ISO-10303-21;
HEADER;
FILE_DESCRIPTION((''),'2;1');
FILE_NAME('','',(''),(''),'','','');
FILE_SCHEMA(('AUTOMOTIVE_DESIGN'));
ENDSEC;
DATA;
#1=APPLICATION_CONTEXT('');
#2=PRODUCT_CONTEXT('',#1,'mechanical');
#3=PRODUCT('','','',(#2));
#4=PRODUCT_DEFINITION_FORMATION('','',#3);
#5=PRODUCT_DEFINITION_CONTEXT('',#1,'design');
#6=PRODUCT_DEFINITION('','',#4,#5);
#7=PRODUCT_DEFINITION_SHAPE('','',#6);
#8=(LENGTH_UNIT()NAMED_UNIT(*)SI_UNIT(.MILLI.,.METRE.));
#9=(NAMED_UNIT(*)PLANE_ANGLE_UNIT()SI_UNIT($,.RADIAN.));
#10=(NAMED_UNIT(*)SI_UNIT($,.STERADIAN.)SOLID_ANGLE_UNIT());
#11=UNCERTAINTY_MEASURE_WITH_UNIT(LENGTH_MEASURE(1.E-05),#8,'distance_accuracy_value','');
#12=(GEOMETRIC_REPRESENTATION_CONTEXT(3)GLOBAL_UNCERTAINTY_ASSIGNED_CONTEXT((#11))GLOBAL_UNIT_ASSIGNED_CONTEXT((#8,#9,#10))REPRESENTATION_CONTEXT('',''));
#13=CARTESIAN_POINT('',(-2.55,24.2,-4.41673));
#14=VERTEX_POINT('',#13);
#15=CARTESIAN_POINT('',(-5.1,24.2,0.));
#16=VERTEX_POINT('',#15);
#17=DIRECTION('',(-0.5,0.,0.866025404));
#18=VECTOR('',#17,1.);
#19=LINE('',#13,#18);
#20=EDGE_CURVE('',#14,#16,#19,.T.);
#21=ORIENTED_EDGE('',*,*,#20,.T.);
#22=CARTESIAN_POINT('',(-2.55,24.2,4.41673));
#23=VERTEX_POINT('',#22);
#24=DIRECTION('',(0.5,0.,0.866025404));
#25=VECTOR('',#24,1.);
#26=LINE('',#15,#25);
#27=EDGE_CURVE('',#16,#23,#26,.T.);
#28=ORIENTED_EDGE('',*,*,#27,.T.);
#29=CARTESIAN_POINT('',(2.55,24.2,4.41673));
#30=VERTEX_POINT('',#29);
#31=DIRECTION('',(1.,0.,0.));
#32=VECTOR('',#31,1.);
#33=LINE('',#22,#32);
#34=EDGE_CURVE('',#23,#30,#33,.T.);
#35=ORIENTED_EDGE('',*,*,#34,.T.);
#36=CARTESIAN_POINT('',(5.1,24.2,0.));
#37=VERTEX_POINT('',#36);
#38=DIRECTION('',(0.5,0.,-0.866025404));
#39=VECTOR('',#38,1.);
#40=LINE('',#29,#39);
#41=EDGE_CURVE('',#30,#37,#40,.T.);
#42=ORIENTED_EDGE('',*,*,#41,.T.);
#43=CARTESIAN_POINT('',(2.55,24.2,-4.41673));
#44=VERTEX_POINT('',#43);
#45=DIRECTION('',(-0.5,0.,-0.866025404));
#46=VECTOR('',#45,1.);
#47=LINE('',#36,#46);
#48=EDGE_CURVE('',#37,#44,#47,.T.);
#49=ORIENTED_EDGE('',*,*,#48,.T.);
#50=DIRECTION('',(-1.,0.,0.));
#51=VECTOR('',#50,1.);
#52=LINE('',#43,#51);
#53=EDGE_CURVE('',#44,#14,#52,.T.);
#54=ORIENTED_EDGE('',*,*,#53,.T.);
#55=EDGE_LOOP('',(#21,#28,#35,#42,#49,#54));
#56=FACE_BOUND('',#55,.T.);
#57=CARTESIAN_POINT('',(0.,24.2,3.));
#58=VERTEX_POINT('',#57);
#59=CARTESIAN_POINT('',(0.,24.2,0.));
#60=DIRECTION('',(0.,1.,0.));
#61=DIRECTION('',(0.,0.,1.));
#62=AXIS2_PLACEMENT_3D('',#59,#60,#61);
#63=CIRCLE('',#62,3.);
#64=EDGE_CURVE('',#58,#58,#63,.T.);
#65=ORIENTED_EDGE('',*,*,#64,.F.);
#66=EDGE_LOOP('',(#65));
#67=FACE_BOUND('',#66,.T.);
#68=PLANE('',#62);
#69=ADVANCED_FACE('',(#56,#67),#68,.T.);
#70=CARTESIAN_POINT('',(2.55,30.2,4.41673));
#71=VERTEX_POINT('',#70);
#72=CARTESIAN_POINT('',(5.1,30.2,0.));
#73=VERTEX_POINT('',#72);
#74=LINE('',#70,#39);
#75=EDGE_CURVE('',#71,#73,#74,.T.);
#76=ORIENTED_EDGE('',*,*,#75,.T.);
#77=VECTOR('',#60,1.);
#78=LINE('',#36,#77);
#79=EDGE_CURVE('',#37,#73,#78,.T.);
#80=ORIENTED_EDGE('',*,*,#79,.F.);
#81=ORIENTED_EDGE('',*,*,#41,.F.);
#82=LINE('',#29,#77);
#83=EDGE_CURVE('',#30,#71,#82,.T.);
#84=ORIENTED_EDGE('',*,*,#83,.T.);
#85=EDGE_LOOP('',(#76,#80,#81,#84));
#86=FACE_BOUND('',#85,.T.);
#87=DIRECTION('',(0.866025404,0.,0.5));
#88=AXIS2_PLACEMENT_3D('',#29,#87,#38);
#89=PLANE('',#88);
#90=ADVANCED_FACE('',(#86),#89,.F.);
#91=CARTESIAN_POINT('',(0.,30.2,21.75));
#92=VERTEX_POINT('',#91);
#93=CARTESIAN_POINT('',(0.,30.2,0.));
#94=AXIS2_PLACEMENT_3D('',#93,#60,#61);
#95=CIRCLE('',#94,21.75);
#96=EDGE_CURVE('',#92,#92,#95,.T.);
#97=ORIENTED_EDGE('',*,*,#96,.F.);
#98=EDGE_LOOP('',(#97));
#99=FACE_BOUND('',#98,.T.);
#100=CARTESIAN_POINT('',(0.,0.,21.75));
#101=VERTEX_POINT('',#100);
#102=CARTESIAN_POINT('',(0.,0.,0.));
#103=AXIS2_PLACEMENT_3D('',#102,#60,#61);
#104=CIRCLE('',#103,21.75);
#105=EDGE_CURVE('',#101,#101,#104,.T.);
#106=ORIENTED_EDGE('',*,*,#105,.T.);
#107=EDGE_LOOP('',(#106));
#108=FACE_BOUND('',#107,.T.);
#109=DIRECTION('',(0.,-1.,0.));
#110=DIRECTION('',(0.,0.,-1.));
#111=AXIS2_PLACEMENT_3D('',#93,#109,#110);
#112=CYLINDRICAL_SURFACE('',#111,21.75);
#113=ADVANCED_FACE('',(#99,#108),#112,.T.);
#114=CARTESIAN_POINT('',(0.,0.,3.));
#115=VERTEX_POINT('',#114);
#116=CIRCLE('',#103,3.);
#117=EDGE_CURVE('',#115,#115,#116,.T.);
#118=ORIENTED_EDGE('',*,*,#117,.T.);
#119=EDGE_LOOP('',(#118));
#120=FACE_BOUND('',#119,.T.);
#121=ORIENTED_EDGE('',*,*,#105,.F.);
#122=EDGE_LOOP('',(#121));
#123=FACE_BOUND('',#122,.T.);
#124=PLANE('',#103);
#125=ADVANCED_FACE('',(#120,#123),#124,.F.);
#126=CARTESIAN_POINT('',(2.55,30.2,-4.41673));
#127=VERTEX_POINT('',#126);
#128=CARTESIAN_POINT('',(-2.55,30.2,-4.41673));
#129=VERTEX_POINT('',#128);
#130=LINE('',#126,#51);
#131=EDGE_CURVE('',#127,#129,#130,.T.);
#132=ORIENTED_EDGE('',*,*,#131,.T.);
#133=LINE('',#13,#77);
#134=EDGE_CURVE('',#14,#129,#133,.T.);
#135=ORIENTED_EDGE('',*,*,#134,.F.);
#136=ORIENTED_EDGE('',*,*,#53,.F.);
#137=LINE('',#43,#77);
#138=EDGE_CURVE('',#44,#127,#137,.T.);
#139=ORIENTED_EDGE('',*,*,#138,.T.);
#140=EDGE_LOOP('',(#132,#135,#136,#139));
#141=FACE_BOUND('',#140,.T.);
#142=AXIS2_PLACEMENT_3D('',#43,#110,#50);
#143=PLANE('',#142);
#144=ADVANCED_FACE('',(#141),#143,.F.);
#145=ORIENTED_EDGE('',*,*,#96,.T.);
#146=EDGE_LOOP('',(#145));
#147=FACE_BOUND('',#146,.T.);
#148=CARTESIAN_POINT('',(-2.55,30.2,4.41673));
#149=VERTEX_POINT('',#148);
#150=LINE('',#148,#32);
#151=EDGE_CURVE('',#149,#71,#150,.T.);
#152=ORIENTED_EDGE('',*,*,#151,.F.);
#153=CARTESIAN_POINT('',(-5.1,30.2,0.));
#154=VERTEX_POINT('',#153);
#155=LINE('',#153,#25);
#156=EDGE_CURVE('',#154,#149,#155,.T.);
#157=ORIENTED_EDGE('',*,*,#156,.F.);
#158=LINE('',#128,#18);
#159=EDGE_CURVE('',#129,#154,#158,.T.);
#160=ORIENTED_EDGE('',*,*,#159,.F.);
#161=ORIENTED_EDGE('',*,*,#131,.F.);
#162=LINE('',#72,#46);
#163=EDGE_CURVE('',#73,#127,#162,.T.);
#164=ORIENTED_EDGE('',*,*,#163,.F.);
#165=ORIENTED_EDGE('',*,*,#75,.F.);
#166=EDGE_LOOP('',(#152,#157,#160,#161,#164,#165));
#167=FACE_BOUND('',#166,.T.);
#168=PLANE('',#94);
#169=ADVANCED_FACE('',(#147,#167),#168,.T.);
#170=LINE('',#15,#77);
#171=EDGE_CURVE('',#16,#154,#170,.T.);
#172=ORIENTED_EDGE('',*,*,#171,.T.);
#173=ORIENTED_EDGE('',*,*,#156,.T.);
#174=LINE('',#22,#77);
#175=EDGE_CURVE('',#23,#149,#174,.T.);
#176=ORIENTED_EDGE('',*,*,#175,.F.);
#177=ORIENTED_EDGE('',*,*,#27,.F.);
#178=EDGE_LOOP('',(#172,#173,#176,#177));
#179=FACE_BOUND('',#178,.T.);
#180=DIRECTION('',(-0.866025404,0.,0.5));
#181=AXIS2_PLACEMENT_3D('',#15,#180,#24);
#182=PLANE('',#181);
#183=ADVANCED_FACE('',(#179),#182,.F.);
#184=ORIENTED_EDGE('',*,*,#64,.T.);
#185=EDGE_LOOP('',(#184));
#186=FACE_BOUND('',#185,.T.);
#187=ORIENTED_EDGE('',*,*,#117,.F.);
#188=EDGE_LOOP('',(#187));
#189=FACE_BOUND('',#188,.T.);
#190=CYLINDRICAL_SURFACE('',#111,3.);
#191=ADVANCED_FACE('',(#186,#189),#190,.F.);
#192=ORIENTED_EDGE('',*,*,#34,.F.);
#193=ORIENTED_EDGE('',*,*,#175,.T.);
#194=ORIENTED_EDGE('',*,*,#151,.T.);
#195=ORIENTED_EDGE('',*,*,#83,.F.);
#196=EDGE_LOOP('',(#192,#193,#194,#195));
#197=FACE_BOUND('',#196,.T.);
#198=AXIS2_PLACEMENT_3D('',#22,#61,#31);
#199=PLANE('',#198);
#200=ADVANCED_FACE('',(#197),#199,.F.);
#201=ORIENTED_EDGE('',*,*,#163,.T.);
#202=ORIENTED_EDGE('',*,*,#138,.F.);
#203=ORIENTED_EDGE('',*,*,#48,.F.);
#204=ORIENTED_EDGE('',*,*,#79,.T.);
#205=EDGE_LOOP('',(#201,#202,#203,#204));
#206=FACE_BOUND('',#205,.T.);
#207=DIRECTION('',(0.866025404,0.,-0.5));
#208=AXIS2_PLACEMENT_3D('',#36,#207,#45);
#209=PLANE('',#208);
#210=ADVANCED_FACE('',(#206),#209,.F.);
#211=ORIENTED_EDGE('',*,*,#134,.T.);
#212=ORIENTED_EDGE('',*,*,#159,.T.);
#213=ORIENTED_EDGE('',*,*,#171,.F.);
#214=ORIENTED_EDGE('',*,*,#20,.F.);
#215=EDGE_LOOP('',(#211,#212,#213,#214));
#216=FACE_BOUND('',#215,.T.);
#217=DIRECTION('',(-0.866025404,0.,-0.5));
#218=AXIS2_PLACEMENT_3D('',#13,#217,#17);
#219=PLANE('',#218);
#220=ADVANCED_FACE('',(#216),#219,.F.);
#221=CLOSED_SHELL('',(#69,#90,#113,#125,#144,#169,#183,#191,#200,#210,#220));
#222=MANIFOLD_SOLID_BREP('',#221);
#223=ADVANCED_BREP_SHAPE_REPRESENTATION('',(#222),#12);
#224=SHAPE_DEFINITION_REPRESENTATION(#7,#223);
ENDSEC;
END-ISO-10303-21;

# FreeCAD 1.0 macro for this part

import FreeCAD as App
import Part
import Sketcher

V = App.Vector
Q = App.Units.Quantity

doc = App.newDocument("Part")
body = doc.addObject("PartDesign::Body", "Body")

sketch1 = doc.addObject("Sketcher::SketchObject", "Sketch")
body.addObject(sketch1)
sketch1.AttachmentSupport = (doc.XZ_Plane, [""])
sketch1.MapMode = "FlatFace"
sketch1.addGeometry(Part.Circle(V(0, 0, 0), V(0, 0, 1), 21.8), False)
sketch1.addGeometry(Part.Circle(V(0, 0, 0), V(0, 0, 1), 3), False)
sketch1.addConstraint(Sketcher.Constraint("Coincident", 0, 3, -1, 1))
sketch1.addConstraint(Sketcher.Constraint("Coincident", 1, 3, -1, 1))
sketch1.addConstraint(Sketcher.Constraint("Diameter", 1, Q("6 mm")))
sketch1.addConstraint(Sketcher.Constraint("Diameter", 0, Q("43.5 mm")))
pad1 = doc.addObject("PartDesign::Pad", "Pad")
body.addObject(pad1)
pad1.Profile = sketch1
pad1.Length = 30.2
pad1.Reversed = True

sketch2 = doc.addObject("Sketcher::SketchObject", "Sketch001")
body.addObject(sketch2)
sketch2.AttachmentSupport = (doc.XZ_Plane, [""])
sketch2.MapMode = "FlatFace"
sketch2.AttachmentOffset = App.Placement(V(0, 0, -30.2), App.Rotation())
sketch2.addGeometry(Part.LineSegment(V(5, 0, 0), V(3, -4, 0)), False)
sketch2.addGeometry(Part.LineSegment(V(3, -4, 0), V(-3, -4, 0)), False)
sketch2.addGeometry(Part.LineSegment(V(-3, -4, 0), V(-5, 0, 0)), False)
sketch2.addGeometry(Part.LineSegment(V(-5, 0, 0), V(-3, 4, 0)), False)
sketch2.addGeometry(Part.LineSegment(V(-3, 4, 0), V(3, 4, 0)), False)
sketch2.addGeometry(Part.LineSegment(V(3, 4, 0), V(5, 0, 0)), False)
sketch2.addConstraint(Sketcher.Constraint("Coincident", 0, 2, 1, 1))
sketch2.addConstraint(Sketcher.Constraint("Coincident", 1, 2, 2, 1))
sketch2.addConstraint(Sketcher.Constraint("Coincident", 2, 2, 3, 1))
sketch2.addConstraint(Sketcher.Constraint("Coincident", 3, 2, 4, 1))
sketch2.addConstraint(Sketcher.Constraint("Coincident", 4, 2, 5, 1))
sketch2.addConstraint(Sketcher.Constraint("Coincident", 5, 2, 0, 1))
sketch2.addConstraint(Sketcher.Constraint("Horizontal", 1))
sketch2.addConstraint(Sketcher.Constraint("Horizontal", 4))
sketch2.addConstraint(Sketcher.Constraint("Symmetric", 0, 2, 3, 2, -1, 1))
sketch2.addConstraint(Sketcher.Constraint("Symmetric", 2, 2, 5, 2, -1, 1))
sketch2.addConstraint(Sketcher.Constraint("PointOnObject", 2, 2, -1))
sketch2.addConstraint(Sketcher.Constraint("Parallel", 2, 5))
sketch2.addConstraint(Sketcher.Constraint("Vertical", 1, 2, 3, 2))
sketch2.addConstraint(Sketcher.Constraint("Angle", 0, Q("-120 deg")))
sketch2.addConstraint(Sketcher.Constraint("DistanceX", 1, 2, 1, 1, Q("5.1 mm")))
sketch2.addConstraint(Sketcher.Constraint("Distance", 0, Q("5.1 mm")))
pocket1 = doc.addObject("PartDesign::Pocket", "Pocket")
body.addObject(pocket1)
pocket1.Profile = sketch2
pocket1.Length = 6
pocket1.Reversed = True

doc.recompute()
